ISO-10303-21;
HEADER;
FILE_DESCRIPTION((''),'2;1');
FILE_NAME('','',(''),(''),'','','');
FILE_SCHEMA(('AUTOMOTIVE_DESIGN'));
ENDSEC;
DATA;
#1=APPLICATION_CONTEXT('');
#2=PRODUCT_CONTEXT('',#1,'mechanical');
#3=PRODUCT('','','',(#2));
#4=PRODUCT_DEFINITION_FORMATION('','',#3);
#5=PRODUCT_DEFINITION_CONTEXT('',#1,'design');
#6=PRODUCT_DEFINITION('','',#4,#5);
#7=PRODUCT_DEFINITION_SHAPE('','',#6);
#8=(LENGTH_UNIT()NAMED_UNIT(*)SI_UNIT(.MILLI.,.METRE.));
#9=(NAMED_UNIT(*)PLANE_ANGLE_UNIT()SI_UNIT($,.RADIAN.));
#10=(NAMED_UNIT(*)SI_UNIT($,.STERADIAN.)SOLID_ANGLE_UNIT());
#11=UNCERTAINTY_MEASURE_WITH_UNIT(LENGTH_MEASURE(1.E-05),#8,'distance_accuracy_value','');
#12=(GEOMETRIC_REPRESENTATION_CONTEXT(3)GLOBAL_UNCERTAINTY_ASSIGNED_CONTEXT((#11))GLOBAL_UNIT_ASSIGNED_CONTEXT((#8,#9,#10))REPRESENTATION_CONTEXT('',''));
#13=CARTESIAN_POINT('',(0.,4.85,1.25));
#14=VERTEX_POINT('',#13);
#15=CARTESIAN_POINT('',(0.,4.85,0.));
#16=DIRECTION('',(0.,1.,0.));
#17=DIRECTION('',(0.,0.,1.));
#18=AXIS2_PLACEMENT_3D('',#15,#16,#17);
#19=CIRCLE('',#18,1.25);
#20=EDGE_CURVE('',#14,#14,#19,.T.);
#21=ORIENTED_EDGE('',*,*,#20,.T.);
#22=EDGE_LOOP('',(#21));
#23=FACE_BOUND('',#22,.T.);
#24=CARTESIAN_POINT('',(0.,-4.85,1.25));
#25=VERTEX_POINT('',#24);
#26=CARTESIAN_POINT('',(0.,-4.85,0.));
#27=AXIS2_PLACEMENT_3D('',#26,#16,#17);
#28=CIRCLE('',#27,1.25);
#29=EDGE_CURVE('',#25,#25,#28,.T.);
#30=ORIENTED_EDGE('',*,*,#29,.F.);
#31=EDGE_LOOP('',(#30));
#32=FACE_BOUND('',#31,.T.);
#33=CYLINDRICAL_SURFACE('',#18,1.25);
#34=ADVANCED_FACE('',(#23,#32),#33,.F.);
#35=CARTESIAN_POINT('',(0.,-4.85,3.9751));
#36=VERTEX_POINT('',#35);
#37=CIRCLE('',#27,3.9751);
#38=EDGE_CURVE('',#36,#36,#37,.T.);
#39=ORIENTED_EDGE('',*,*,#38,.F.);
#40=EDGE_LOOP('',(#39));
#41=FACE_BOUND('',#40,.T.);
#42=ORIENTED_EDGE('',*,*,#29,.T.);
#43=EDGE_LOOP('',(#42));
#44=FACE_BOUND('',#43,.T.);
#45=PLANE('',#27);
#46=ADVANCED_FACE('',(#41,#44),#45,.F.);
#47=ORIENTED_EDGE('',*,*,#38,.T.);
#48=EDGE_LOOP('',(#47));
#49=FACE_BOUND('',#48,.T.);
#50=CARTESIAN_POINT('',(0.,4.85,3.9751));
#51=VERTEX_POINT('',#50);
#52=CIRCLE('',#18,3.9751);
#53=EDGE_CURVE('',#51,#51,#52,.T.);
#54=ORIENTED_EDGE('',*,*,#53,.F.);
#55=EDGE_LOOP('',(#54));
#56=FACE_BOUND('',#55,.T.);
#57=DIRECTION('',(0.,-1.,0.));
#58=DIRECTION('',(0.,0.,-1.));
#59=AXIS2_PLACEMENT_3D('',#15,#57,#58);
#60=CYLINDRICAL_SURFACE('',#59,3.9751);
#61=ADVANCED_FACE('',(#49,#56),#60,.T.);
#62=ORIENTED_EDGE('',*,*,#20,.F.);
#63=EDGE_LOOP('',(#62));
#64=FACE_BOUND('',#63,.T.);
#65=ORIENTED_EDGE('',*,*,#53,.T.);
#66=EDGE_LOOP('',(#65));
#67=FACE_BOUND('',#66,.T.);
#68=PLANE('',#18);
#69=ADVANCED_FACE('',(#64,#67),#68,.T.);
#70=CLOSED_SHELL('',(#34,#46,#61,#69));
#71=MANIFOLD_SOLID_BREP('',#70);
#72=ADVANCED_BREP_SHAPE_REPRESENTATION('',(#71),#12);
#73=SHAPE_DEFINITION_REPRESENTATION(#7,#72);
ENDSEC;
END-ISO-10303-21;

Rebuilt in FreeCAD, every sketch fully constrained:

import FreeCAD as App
import Part
import Sketcher
from FreeCAD import Vector
Q = App.Units.Quantity

doc = App.newDocument("Part")
body = doc.addObject("PartDesign::Body", "Body")

sketch1 = doc.addObject("Sketcher::SketchObject", "Sketch")
body.addObject(sketch1)
sketch1.AttachmentSupport = (doc.XZ_Plane, [""])
sketch1.MapMode = "FlatFace"
sketch1.addGeometry(Part.Circle(Vector(0, 0, 0), Vector(0, 0, 1), 4), False)
sketch1.addConstraint(Sketcher.Constraint("Coincident", 0, 3, -1, 1))
sketch1.addConstraint(Sketcher.Constraint("Diameter", 0, Q("7.9502 mm")))
pad1 = doc.addObject("PartDesign::Pad", "Pad")
body.addObject(pad1)
pad1.Profile = sketch1
pad1.Length = 9.7
pad1.Midplane = True

sketch2 = doc.addObject("Sketcher::SketchObject", "Sketch001")
body.addObject(sketch2)
sketch2.AttachmentSupport = (doc.XZ_Plane, [""])
sketch2.MapMode = "FlatFace"
sketch2.AttachmentOffset = App.Placement(Vector(0, 0, -4.85), App.Rotation())
sketch2.addGeometry(Part.Circle(Vector(0, 0, 0), Vector(0, 0, 1), 1.2), False)
sketch2.addConstraint(Sketcher.Constraint("Coincident", 0, 3, -1, 1))
sketch2.addConstraint(Sketcher.Constraint("Diameter", 0, Q("2.5 mm")))
doc.recompute()
hole = doc.addObject("PartDesign::Hole", "Hole")
body.addObject(hole)
hole.Profile = sketch2
hole.ThreadType = "None"
hole.Diameter = 2.5
hole.DepthType = "ThroughAll"
hole.Reversed = True

doc.recompute()
